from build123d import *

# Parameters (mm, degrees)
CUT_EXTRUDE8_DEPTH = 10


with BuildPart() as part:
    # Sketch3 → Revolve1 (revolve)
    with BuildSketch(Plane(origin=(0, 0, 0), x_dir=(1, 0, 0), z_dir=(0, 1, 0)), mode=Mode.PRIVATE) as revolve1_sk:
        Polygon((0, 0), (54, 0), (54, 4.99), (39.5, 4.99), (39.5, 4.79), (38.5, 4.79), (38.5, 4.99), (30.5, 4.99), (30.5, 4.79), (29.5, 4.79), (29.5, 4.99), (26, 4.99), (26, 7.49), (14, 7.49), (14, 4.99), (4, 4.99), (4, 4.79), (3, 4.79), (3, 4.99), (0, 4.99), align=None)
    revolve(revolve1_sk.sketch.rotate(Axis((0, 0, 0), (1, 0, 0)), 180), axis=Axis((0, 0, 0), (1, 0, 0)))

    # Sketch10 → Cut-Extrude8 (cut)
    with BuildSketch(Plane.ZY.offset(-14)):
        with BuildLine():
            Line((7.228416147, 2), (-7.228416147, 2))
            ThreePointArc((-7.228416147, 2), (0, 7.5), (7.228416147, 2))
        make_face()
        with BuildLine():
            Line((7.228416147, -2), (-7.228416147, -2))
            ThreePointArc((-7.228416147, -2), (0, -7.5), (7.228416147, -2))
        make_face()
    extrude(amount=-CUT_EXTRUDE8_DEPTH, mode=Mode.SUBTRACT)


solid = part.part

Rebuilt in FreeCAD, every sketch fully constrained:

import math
import FreeCAD as App
import Part
import Sketcher
Q = App.Units.Quantity


def add_polygon(sketch, points):
    """Adds a closed chain of lines whose ends are joined by coincident constraints."""
    first, n = sketch.GeometryCount, len(points)
    for a, b in zip(points, points[1:] + points[:1]):
        sketch.addGeometry(Part.LineSegment(App.Vector(*a, 0), App.Vector(*b, 0)), False)
    for i in range(n):
        sketch.addConstraint(Sketcher.Constraint("Coincident", first + i, 2, first + (i + 1) % n, 1))

doc = App.newDocument("Part")
body = doc.addObject("PartDesign::Body", "Body")

sketch1 = body.newObject("Sketcher::SketchObject", "Sketch")
sketch1.AttachmentSupport = (doc.getObject("XZ_Plane"), [""])
sketch1.MapMode = "FlatFace"
add_polygon(sketch1, [(0, 0), (54, 0), (54, -4.99), (39.5, -4.99), (39.5, -4.79), (38.5, -4.79), (38.5, -4.99), (30.5, -4.99), (30.5, -4.79), (29.5, -4.79), (29.5, -4.99), (26, -4.99), (26, -7.49), (14, -7.49), (14, -4.99), (4, -4.99), (4, -4.79), (3, -4.79), (3, -4.99), (0, -4.99)])
sketch1.addConstraint(Sketcher.Constraint("Horizontal", 0))
sketch1.addConstraint(Sketcher.Constraint("Vertical", 1))
sketch1.addConstraint(Sketcher.Constraint("Horizontal", 2))
sketch1.addConstraint(Sketcher.Constraint("Vertical", 3))
sketch1.addConstraint(Sketcher.Constraint("Horizontal", 4))
sketch1.addConstraint(Sketcher.Constraint("Vertical", 5))
sketch1.addConstraint(Sketcher.Constraint("Horizontal", 6))
sketch1.addConstraint(Sketcher.Constraint("Vertical", 7))
sketch1.addConstraint(Sketcher.Constraint("Horizontal", 8))
sketch1.addConstraint(Sketcher.Constraint("Vertical", 9))
sketch1.addConstraint(Sketcher.Constraint("Horizontal", 10))
sketch1.addConstraint(Sketcher.Constraint("Vertical", 11))
sketch1.addConstraint(Sketcher.Constraint("Horizontal", 12))
sketch1.addConstraint(Sketcher.Constraint("Vertical", 13))
sketch1.addConstraint(Sketcher.Constraint("Horizontal", 14))
sketch1.addConstraint(Sketcher.Constraint("Vertical", 15))
sketch1.addConstraint(Sketcher.Constraint("Horizontal", 16))
sketch1.addConstraint(Sketcher.Constraint("Vertical", 17))
sketch1.addConstraint(Sketcher.Constraint("Horizontal", 18))
sketch1.addConstraint(Sketcher.Constraint("Vertical", 19))
sketch1.addConstraint(Sketcher.Constraint("Coincident", 19, 2, -1, 1))
sketch1.addConstraint(Sketcher.Constraint("Horizontal", 2, 2, 5, 2))
sketch1.addConstraint(Sketcher.Constraint("Horizontal", 4, 2, 7, 2))
sketch1.addConstraint(Sketcher.Constraint("Horizontal", 6, 2, 9, 2))
sketch1.addConstraint(Sketcher.Constraint("Horizontal", 10, 2, 13, 2))
sketch1.addConstraint(Sketcher.Constraint("Horizontal", 8, 2, 15, 2))
sketch1.addConstraint(Sketcher.Constraint("Horizontal", 14, 2, 17, 2))
sketch1.addConstraint(Sketcher.Constraint("Equal", 4, 8))
sketch1.addConstraint(Sketcher.Constraint("Equal", 8, 16))
sketch1.addConstraint(Sketcher.Constraint("DistanceX", 0, 1, 0, 2, Q("54 mm")))
sketch1.addConstraint(Sketcher.Constraint("DistanceX", 4, 2, 4, 1, Q("1 mm")))
sketch1.addConstraint(Sketcher.Constraint("DistanceX", 6, 2, 6, 1, Q("8 mm")))
sketch1.addConstraint(Sketcher.Constraint("DistanceX", 12, 2, 12, 1, Q("12 mm")))
sketch1.addConstraint(Sketcher.Constraint("DistanceX", 14, 2, 14, 1, Q("10 mm")))
sketch1.addConstraint(Sketcher.Constraint("DistanceX", 18, 2, 18, 1, Q("3 mm")))
sketch1.addConstraint(Sketcher.Constraint("DistanceX", 2, 2, 2, 1, Q("14.5 mm")))
sketch1.addConstraint(Sketcher.Constraint("DistanceY", 3, 1, 3, 2, Q("0.2 mm")))
sketch1.addConstraint(Sketcher.Constraint("DistanceY", 11, 2, 11, 1, Q("2.5 mm")))
sketch1.addConstraint(Sketcher.Constraint("DistanceY", 1, 2, 1, 1, Q("4.99 mm")))
revolution = body.newObject("PartDesign::Revolution", "Revolution")
revolution.Profile = sketch1
revolution.ReferenceAxis = (sketch1, ["H_Axis"])
revolution.Angle = 360

sketch2 = body.newObject("Sketcher::SketchObject", "Sketch001")
sketch2.AttachmentSupport = (doc.getObject("YZ_Plane"), [""])
sketch2.MapMode = "FlatFace"
sketch2.AttachmentOffset = App.Placement(App.Vector(0, 0, 14), App.Rotation())
sketch2.addGeometry(Part.LineSegment(App.Vector(2, -7, 0), App.Vector(2, 7, 0)), False)
sketch2.addGeometry(Part.ArcOfCircle(Part.Circle(App.Vector(0, 0, 0), App.Vector(0, 0, 1), 7), math.radians(-75), math.radians(75)), False)
sketch2.addGeometry(Part.LineSegment(App.Vector(-2, 7, 0), App.Vector(-2, -7, 0)), False)
sketch2.addGeometry(Part.ArcOfCircle(Part.Circle(App.Vector(0, 0, 0), App.Vector(0, 0, 1), 7), math.radians(105), math.radians(255)), False)
sketch2.addConstraint(Sketcher.Constraint("Coincident", 0, 1, 1, 1))
sketch2.addConstraint(Sketcher.Constraint("Coincident", 1, 2, 0, 2))
sketch2.addConstraint(Sketcher.Constraint("Coincident", 2, 1, 3, 1))
sketch2.addConstraint(Sketcher.Constraint("Coincident", 3, 2, 2, 2))
sketch2.addConstraint(Sketcher.Constraint("Vertical", 0))
sketch2.addConstraint(Sketcher.Constraint("Vertical", 2))
sketch2.addConstraint(Sketcher.Constraint("Coincident", 1, 3, -1, 1))
sketch2.addConstraint(Sketcher.Constraint("Coincident", 3, 3, -1, 1))
sketch2.addConstraint(Sketcher.Constraint("Equal", 1, 3))
sketch2.addConstraint(Sketcher.Constraint("Horizontal", 1, 2, 2, 1))
sketch2.addConstraint(Sketcher.Constraint("Radius", 1, Q("7.5 mm")))
sketch2.addConstraint(Sketcher.Constraint("DistanceX", -1, 1, 0, 1, Q("2 mm")))
pocket1 = body.newObject("PartDesign::Pocket", "Pocket")
pocket1.Profile = sketch2
pocket1.Length = 10
pocket1.Reversed = True

doc.recompute()
